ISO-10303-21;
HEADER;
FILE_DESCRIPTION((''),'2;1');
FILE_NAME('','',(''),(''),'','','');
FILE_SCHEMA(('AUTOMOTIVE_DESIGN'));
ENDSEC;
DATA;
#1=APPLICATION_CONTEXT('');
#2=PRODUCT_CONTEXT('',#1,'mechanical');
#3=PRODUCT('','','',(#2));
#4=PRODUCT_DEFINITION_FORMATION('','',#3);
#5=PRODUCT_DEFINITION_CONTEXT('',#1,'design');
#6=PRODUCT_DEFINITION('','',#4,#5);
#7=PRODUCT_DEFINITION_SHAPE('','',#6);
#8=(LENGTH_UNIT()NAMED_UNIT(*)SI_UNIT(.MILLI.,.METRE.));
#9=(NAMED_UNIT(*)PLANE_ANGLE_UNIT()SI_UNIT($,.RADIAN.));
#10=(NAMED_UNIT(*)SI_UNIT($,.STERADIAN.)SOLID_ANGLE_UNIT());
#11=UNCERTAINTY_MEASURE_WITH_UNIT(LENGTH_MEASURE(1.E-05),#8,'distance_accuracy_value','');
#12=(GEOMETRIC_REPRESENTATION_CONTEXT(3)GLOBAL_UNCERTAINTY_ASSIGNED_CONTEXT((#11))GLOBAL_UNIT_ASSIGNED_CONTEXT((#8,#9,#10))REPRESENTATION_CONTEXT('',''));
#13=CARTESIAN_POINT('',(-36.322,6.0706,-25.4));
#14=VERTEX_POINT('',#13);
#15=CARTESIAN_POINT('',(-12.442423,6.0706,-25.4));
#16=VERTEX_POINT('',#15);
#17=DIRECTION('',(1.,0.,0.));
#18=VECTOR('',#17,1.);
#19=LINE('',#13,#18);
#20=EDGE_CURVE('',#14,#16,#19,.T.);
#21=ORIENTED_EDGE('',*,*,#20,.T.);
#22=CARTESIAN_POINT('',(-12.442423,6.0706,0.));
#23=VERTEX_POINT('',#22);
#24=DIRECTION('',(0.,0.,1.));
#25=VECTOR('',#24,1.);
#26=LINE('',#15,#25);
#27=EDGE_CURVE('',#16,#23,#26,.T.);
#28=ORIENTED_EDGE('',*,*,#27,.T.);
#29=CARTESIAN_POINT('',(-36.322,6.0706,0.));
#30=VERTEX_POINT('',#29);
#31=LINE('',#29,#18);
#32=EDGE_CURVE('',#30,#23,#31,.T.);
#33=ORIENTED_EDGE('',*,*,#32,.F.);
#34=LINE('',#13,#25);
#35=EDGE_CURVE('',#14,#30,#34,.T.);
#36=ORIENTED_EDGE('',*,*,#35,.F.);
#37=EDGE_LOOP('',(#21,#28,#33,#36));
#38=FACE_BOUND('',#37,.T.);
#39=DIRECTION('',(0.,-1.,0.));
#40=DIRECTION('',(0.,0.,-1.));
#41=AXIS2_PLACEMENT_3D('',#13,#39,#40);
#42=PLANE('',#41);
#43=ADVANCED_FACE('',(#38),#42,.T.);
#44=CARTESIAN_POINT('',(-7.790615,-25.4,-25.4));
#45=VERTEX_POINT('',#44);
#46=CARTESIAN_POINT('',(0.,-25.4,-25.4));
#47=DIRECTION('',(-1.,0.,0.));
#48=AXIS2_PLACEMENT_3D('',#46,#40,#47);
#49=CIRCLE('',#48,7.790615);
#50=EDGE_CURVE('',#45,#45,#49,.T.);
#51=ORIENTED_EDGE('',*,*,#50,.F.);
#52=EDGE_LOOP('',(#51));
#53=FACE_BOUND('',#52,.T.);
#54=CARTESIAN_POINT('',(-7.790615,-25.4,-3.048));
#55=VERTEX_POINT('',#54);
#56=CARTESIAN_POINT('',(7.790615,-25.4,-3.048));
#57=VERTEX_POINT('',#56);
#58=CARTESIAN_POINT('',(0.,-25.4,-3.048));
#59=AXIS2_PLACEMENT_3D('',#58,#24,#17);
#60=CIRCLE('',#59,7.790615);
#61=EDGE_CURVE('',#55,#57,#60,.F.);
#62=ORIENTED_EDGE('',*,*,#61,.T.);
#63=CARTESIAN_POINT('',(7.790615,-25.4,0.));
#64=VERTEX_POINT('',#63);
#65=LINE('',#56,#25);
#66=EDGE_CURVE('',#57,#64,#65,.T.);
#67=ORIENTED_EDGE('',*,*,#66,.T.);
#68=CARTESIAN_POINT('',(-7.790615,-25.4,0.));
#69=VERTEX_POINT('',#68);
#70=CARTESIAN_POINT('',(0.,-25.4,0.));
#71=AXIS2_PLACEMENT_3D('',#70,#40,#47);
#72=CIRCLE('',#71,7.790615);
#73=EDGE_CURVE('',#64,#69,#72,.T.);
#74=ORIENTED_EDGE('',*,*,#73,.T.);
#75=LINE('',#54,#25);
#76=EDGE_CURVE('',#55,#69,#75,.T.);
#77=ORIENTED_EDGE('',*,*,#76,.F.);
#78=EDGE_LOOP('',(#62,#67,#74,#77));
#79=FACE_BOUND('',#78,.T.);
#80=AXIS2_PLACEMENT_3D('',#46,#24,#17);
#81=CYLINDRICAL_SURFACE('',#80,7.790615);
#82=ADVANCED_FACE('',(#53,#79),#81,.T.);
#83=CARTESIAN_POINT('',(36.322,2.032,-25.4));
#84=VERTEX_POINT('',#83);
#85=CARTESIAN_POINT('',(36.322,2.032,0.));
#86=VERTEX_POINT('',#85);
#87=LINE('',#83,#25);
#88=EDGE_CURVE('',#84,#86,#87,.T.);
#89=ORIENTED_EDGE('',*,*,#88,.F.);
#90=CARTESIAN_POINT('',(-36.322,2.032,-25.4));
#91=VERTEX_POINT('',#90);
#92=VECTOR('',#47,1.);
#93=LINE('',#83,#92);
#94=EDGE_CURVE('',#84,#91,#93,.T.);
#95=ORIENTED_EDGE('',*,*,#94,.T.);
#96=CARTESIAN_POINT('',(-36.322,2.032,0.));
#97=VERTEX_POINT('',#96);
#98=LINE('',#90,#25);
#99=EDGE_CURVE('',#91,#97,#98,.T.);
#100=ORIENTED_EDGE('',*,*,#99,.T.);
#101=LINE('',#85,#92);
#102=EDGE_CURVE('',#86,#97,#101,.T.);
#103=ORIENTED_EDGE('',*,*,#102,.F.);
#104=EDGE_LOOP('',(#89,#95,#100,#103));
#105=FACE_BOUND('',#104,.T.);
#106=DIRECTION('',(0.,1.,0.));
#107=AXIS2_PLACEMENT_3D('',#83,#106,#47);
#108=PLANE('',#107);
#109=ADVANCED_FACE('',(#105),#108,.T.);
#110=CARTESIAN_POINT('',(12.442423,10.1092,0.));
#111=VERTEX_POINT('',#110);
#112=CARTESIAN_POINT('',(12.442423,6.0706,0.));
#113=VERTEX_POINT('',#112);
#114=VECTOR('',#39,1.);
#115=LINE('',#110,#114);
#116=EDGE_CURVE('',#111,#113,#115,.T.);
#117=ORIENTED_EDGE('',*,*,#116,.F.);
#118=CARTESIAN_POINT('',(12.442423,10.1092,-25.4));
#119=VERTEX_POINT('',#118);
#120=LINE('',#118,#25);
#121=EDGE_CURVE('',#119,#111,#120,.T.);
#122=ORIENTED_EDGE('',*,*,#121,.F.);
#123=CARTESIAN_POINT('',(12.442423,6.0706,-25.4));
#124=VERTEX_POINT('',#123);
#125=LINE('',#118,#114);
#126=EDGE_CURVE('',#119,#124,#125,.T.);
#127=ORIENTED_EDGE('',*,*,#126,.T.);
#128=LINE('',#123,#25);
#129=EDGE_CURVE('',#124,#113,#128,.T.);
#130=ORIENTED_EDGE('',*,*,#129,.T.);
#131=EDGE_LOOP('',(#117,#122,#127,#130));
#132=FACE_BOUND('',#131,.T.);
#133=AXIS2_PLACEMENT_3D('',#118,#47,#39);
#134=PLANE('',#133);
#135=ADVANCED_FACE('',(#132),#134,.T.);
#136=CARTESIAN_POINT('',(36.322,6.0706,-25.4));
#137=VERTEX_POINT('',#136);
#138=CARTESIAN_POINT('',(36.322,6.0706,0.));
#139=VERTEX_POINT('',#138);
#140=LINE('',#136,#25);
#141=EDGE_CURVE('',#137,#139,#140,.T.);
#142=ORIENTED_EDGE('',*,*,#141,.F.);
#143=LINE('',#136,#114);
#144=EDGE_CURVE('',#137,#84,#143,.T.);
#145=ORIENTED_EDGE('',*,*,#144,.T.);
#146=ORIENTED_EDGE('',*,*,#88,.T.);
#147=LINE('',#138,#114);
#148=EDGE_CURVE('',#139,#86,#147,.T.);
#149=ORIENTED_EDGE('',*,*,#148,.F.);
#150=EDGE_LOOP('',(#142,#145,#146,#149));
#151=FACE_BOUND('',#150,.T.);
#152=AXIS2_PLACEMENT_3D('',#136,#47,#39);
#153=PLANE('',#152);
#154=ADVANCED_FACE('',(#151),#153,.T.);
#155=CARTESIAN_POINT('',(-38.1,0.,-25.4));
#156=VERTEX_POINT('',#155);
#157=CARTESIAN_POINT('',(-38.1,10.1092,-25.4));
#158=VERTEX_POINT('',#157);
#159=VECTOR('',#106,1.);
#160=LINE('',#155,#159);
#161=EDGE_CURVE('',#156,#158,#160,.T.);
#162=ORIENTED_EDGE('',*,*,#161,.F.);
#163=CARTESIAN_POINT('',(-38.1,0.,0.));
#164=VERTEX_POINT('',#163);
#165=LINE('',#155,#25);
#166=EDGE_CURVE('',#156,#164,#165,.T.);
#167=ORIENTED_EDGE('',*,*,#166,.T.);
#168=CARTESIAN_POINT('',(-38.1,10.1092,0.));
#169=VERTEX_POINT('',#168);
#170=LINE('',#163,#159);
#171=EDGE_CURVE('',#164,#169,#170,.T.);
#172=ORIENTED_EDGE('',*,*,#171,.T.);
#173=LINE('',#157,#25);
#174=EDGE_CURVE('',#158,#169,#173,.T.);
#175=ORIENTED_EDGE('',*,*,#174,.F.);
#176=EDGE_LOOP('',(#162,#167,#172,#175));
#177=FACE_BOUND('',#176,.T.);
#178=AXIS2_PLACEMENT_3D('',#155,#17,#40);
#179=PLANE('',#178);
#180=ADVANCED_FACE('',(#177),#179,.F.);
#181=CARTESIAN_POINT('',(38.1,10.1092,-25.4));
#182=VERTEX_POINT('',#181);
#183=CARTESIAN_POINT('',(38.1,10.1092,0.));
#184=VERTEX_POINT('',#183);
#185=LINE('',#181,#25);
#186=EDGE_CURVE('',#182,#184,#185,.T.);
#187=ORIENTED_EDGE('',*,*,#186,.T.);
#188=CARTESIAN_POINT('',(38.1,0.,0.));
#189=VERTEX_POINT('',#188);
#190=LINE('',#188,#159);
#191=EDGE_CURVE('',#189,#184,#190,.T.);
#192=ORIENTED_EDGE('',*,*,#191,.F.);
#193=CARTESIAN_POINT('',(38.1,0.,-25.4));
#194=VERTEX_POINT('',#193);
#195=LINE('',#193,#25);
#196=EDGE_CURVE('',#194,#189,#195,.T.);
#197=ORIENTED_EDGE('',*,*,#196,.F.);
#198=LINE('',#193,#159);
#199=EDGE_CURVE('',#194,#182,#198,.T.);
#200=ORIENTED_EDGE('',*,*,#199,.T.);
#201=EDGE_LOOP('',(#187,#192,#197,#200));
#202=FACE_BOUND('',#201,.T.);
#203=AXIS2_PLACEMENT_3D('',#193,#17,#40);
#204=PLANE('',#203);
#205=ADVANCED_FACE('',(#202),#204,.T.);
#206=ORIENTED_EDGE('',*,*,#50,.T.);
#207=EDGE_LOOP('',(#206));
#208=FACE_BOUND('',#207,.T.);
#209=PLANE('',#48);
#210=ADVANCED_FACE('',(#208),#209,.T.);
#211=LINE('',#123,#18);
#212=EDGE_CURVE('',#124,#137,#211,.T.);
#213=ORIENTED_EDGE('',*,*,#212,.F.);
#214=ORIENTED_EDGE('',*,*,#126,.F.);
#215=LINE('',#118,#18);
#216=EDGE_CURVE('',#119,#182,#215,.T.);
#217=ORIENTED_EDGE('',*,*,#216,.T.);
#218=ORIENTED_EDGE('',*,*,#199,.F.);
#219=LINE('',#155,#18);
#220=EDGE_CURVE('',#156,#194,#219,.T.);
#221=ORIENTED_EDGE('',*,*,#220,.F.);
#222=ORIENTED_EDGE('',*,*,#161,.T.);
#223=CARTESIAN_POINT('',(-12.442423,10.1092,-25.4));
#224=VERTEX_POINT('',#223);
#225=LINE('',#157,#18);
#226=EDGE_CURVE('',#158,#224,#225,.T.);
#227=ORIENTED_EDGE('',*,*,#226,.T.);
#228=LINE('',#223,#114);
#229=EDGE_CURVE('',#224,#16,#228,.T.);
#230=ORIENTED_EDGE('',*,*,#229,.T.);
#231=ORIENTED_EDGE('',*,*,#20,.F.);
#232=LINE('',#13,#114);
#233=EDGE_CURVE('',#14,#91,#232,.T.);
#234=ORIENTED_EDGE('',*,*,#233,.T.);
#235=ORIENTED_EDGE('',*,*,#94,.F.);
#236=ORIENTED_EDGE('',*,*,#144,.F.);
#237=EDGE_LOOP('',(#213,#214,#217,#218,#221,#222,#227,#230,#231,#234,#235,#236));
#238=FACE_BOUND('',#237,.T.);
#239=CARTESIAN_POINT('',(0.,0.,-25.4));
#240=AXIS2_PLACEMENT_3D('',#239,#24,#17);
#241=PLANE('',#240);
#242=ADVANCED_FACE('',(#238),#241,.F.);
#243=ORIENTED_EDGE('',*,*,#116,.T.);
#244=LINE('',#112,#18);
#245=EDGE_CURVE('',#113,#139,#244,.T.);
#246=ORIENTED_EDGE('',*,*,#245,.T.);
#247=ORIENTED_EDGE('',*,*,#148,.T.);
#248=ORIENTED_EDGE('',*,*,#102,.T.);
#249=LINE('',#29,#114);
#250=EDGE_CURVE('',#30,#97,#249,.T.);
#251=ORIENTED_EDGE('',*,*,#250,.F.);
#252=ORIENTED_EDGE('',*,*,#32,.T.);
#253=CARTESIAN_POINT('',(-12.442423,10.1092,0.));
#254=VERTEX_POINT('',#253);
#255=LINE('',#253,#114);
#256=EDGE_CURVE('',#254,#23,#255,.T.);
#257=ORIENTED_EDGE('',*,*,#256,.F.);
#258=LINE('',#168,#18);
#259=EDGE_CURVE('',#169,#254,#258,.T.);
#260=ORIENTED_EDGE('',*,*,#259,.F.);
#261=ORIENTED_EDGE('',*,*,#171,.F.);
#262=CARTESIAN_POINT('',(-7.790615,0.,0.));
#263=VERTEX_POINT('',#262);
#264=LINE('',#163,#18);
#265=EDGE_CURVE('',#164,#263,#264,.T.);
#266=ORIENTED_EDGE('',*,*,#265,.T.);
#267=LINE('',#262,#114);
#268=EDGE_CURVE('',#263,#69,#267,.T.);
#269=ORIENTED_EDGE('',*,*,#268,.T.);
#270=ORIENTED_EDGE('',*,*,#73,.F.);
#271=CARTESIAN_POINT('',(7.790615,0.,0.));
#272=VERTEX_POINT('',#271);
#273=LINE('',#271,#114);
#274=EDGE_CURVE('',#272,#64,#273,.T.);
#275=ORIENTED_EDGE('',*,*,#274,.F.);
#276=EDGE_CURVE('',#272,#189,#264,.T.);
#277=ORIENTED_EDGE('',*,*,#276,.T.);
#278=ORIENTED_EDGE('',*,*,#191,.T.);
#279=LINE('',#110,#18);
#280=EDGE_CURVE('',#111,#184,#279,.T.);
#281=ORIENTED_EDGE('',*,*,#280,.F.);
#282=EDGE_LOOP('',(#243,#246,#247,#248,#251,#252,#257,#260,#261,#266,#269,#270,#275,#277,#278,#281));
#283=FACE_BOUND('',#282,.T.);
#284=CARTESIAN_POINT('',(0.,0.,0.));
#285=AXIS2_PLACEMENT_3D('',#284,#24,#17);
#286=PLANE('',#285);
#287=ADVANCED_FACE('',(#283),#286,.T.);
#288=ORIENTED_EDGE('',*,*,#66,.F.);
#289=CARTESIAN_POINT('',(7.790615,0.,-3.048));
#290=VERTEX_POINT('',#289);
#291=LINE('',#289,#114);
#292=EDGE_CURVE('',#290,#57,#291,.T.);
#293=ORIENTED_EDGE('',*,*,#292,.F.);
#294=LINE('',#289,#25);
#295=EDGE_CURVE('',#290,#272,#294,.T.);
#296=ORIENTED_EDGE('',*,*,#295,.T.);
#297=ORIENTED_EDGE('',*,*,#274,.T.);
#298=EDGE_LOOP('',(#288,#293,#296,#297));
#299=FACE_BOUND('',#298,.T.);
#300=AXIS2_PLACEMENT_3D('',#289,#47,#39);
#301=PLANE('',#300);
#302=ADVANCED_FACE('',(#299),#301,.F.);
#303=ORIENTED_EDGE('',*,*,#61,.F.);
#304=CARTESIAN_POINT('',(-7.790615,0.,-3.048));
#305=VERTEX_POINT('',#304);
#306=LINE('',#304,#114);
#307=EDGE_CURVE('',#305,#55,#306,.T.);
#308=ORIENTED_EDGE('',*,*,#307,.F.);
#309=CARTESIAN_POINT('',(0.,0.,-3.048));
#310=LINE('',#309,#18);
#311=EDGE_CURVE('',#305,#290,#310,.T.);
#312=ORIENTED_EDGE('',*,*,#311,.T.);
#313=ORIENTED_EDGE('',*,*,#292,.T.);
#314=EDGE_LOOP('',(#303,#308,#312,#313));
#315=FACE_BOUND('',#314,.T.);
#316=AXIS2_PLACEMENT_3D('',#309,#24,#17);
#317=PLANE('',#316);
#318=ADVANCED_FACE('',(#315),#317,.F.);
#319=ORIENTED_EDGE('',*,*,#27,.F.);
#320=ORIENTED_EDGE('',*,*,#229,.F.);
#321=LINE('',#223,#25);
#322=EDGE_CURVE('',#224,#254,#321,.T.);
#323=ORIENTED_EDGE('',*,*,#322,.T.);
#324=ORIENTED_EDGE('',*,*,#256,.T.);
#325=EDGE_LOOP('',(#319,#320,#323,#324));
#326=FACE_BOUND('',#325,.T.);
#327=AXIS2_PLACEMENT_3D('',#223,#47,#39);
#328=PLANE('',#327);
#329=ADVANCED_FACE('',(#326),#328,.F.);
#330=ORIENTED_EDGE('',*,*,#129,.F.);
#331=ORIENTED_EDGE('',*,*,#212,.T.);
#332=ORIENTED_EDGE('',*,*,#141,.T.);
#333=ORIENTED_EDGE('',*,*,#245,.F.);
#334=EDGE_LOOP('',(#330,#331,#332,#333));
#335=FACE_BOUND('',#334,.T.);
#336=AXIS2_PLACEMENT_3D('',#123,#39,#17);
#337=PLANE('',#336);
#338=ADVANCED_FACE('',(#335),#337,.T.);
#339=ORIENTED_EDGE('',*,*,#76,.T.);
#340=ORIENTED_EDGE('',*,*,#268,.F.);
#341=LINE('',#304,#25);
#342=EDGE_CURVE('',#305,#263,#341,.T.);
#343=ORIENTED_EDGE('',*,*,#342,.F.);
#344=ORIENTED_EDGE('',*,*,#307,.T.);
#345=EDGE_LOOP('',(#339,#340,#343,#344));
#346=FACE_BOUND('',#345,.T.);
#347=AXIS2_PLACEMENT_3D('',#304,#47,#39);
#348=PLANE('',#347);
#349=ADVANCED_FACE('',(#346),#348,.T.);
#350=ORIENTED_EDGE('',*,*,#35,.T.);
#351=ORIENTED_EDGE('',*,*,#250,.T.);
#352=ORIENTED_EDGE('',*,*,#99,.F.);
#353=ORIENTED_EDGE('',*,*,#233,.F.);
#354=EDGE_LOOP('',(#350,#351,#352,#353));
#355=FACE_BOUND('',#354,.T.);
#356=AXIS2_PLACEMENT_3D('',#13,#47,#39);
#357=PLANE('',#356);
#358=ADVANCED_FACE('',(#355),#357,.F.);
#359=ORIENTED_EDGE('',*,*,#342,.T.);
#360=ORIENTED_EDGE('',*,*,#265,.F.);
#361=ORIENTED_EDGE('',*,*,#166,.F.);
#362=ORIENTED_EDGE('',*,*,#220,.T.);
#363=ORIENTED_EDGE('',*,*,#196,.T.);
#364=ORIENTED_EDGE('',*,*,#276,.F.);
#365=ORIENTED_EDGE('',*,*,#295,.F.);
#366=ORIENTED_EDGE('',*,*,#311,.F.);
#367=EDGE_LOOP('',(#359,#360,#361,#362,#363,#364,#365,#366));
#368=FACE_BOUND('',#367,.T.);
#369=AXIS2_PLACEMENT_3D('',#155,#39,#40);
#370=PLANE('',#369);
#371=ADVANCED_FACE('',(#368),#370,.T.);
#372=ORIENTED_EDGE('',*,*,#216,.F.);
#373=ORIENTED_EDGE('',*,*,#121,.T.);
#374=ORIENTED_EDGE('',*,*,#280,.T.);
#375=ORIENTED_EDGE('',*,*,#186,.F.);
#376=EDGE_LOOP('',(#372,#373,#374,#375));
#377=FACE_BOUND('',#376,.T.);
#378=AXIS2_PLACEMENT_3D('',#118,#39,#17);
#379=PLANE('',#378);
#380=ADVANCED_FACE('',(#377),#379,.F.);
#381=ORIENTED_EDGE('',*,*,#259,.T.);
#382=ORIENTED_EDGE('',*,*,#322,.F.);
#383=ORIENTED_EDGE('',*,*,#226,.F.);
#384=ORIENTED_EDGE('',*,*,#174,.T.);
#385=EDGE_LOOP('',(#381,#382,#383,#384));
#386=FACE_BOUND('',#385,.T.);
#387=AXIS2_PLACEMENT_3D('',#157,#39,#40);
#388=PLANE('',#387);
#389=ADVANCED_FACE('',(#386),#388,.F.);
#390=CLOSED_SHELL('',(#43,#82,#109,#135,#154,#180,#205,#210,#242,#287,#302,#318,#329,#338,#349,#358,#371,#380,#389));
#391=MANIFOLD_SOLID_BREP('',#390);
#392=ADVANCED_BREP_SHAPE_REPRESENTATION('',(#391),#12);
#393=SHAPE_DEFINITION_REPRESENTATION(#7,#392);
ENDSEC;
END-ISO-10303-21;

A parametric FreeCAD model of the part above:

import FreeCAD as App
import Part
import Sketcher
from FreeCAD import Vector
Q = App.Units.Quantity


def add_polygon(sketch, points):
    """Adds a closed chain of lines whose ends are joined by coincident constraints."""
    first, n = sketch.GeometryCount, len(points)
    for a, b in zip(points, points[1:] + points[:1]):
        sketch.addGeometry(Part.LineSegment(App.Vector(*a, 0), App.Vector(*b, 0)), False)
    for i in range(n):
        sketch.addConstraint(Sketcher.Constraint("Coincident", first + i, 2, first + (i + 1) % n, 1))

doc = App.newDocument("Part")
body = doc.addObject("PartDesign::Body", "Body")

# Sketch on XY plane
sketch1 = body.newObject("Sketcher::SketchObject", "Sketch")
sketch1.AttachmentSupport = (doc.getObject("XY_Plane"), [""])
sketch1.MapMode = "FlatFace"
add_polygon(sketch1, [(-38.1, 0), (38.1, 0), (38.1, 10.1), (12.4, 10.1), (12.4, 6.1), (36.3, 6.1), (36.3, 2), (-36.3, 2), (-36.3, 6.1), (-12.4, 6.1), (-12.4, 10.1), (-38.1, 10.1)])  # lines 0-11
sketch1.addConstraint([
    Sketcher.Constraint("Horizontal", 0),
    Sketcher.Constraint("Vertical", 1),
    Sketcher.Constraint("Horizontal", 2),
    Sketcher.Constraint("Vertical", 3),
    Sketcher.Constraint("Horizontal", 4),
    Sketcher.Constraint("Vertical", 5),
    Sketcher.Constraint("Horizontal", 6),
    Sketcher.Constraint("Vertical", 7),
    Sketcher.Constraint("Horizontal", 8),
    Sketcher.Constraint("Vertical", 9),
    Sketcher.Constraint("Horizontal", 10),
    Sketcher.Constraint("Vertical", 11),
    Sketcher.Constraint("Symmetric", 0, 2, 11, 2, -1, 1),
    Sketcher.Constraint("Symmetric", 4, 2, 7, 2, -2),
    Sketcher.Constraint("Symmetric", 2, 2, 9, 2, -2),
    Sketcher.Constraint("Equal", 3, 5),
    Sketcher.Constraint("DistanceX", 0, 1, 0, 2, Q("3 in")),
    Sketcher.Constraint("DistanceX", 6, 2, 6, 1, Q("2.86 in")),
    Sketcher.Constraint("DistanceY", 1, 1, 1, 2, Q("0.398 in")),
    Sketcher.Constraint("DistanceY", 3, 2, 3, 1, Q("0.159 in")),
    Sketcher.Constraint("DistanceX", 2, 2, 2, 1, Q("25.657577 mm")),
])
pad1 = body.newObject("PartDesign::Pad", "Pad")
pad1.Profile = sketch1
pad1.Length = Q("1 in")
pad1.Reversed = True

# Sketch on XY plane
sketch2 = body.newObject("Sketcher::SketchObject", "Sketch001")
sketch2.AttachmentSupport = (doc.getObject("XY_Plane"), [""])
sketch2.MapMode = "FlatFace"
add_polygon(sketch2, [(-8, 0), (-8, -25), (8, -25), (8, 0)])  # lines 0-3
sketch2.addConstraint([
    Sketcher.Constraint("Vertical", 0),
    Sketcher.Constraint("Horizontal", 1),
    Sketcher.Constraint("Vertical", 2),
    Sketcher.Constraint("Horizontal", 3),
    Sketcher.Constraint("Symmetric", 2, 2, 3, 2, -1, 1),
    Sketcher.Constraint("DistanceY", 0, 2, 0, 1, Q("1 in")),
    Sketcher.Constraint("DistanceX", 1, 1, 1, 2, Q("15.58123 mm")),
])
pad2 = body.newObject("PartDesign::Pad", "Pad001")
pad2.Profile = sketch2
pad2.Length = Q("0.12 in")
pad2.Reversed = True

# Sketch on XY plane
sketch3 = body.newObject("Sketcher::SketchObject", "Sketch002")
sketch3.AttachmentSupport = (doc.getObject("XY_Plane"), [""])
sketch3.MapMode = "FlatFace"
sketch3.addGeometry(Part.Circle(Vector(0, -25, 0), Vector(0, 0, 1), 8), False)
sketch3.addConstraint([
    Sketcher.Constraint("PointOnObject", 0, 3, -2),
    Sketcher.Constraint("DistanceY", 0, 3, -1, 1, Q("1 in")),
    Sketcher.Constraint("Diameter", 0, Q("15.58123 mm")),
])
pad3 = body.newObject("PartDesign::Pad", "Pad002")
pad3.Profile = sketch3
pad3.Length = Q("1 in")
pad3.Reversed = True

doc.recompute()
